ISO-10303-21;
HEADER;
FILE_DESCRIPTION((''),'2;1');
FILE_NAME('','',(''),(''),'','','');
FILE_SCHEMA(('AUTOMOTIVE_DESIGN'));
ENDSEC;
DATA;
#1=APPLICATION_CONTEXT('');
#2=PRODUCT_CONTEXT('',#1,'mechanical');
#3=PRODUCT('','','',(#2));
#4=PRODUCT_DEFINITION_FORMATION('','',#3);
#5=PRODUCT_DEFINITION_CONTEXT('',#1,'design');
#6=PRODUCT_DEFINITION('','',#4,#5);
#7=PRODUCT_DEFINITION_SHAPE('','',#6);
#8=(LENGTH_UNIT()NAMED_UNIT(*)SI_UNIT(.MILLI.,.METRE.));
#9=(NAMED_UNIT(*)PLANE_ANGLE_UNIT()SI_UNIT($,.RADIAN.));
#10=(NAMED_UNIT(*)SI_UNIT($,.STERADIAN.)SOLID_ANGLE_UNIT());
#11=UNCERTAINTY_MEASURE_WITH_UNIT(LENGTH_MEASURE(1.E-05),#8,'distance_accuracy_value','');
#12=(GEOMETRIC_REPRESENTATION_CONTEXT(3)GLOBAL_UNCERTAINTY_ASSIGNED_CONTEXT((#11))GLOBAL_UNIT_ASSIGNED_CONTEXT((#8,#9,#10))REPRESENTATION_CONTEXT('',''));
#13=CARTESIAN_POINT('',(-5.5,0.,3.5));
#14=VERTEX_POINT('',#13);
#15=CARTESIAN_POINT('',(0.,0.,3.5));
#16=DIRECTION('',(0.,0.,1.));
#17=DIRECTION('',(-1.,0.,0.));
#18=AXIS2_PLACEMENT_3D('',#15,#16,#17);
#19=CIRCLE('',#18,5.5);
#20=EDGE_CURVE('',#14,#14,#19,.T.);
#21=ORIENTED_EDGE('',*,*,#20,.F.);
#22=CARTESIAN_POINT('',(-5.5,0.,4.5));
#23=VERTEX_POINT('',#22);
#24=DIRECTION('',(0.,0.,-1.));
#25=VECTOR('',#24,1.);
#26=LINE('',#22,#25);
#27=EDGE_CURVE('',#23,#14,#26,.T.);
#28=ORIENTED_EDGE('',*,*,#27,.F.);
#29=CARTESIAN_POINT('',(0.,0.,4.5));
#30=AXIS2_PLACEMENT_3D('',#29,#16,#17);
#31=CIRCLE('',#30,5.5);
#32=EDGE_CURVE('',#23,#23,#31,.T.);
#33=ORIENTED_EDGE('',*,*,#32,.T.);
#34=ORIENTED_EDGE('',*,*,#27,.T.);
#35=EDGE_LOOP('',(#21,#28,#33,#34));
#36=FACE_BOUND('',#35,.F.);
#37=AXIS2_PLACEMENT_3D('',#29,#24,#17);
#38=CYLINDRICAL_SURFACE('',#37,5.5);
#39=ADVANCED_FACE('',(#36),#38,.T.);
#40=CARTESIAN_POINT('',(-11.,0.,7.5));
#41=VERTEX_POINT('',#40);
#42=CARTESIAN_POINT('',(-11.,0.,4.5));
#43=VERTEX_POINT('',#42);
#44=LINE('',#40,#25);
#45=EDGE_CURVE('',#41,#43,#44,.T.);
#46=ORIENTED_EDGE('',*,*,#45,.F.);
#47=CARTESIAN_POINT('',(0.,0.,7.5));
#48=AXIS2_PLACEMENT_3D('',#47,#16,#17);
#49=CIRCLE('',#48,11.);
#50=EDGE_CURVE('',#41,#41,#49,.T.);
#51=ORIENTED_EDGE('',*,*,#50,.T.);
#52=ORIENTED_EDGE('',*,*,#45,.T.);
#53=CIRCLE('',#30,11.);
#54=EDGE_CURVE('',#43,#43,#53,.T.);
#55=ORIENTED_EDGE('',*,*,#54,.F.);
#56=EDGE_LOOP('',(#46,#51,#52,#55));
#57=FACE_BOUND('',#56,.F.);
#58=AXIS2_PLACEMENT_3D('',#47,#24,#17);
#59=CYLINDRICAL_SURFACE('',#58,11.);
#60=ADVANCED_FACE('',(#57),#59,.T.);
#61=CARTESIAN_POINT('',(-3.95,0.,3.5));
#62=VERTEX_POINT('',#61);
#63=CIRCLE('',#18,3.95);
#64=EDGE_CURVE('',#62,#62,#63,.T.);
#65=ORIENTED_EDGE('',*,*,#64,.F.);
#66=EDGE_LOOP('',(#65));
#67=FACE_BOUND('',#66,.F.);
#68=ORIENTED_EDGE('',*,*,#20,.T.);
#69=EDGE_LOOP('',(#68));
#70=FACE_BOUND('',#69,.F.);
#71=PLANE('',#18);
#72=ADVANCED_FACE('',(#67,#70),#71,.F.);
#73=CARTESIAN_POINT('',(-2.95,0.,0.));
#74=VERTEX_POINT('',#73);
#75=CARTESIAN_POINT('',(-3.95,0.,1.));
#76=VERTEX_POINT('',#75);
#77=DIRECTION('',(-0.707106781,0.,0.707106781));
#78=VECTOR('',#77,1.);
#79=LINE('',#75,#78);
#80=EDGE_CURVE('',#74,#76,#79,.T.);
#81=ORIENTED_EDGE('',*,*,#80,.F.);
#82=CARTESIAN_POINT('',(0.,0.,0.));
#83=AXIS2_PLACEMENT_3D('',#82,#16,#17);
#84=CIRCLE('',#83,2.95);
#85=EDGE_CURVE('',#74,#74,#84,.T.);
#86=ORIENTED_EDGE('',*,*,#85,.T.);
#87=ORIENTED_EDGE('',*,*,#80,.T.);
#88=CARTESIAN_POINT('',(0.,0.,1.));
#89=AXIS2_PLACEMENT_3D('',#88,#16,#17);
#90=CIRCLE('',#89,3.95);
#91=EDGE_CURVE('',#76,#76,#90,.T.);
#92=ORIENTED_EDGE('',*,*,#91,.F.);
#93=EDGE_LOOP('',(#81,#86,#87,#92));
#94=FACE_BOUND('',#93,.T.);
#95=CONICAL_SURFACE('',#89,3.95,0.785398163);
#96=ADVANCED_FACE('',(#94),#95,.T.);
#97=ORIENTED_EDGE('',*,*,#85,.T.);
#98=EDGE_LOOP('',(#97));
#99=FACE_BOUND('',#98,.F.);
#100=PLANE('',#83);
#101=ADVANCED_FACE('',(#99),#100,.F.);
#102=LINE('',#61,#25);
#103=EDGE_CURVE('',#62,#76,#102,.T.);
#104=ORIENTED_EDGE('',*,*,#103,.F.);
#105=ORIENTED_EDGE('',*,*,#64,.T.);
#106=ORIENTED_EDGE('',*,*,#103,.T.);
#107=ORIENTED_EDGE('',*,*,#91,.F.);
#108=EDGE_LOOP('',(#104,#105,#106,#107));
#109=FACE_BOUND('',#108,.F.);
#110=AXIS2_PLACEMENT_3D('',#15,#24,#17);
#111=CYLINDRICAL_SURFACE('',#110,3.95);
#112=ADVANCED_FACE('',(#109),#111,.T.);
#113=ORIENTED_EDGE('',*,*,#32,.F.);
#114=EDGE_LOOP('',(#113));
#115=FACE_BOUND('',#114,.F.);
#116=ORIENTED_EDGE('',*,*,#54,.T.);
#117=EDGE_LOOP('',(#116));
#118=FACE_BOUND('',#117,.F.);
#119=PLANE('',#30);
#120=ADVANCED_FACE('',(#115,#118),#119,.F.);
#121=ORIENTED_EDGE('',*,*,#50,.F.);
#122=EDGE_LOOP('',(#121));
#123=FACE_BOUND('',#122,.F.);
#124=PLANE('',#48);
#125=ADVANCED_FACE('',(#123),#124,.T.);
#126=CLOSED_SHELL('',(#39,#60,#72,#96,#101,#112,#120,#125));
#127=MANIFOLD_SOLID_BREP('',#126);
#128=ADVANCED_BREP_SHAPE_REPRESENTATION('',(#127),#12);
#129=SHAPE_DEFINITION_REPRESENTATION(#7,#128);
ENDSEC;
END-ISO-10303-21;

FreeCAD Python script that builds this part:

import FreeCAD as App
import Part
import Sketcher
from FreeCAD import Vector


def edges_at(feature, points):
    """Names of the edges that pass closest to the given points."""
    edges = feature.Shape.Edges
    near = lambda p: min(range(len(edges)), key=lambda i: edges[i].distToShape(Part.Vertex(*p))[0])
    return sorted({f"Edge{near(p) + 1}" for p in points})


def add_polygon(sketch, points):
    """Adds a closed chain of lines whose ends are joined by coincident constraints."""
    first, n = sketch.GeometryCount, len(points)
    for a, b in zip(points, points[1:] + points[:1]):
        sketch.addGeometry(Part.LineSegment(App.Vector(*a, 0), App.Vector(*b, 0)), False)
    for i in range(n):
        sketch.addConstraint(Sketcher.Constraint("Coincident", first + i, 2, first + (i + 1) % n, 1))

doc = App.newDocument("Part")
params = doc.addObject("Spreadsheet::Sheet", "Params")
for row, (alias, value) in enumerate([
    ("sketch1_width", "11 mm"),
    ("sketch1_height", "3 mm"),
    ("sketch1_height2", "1 mm"),
    ("sketch1_width2", "5.5 mm"),
    ("sketch1_height3", "7.5 mm"),
    ("revolution_angle", "360 deg"),
    ("chamfer_size", "1 mm"),
], start=1):
    params.set(f"A{row}", alias)
    params.set(f"B{row}", "=" + value)
    params.setAlias(f"B{row}", alias)

body = doc.addObject("PartDesign::Body", "Body")

sketch1 = doc.addObject("Sketcher::SketchObject", "Sketch")
body.addObject(sketch1)
sketch1.AttachmentSupport = (doc.XZ_Plane, [""])
sketch1.MapMode = "FlatFace"
add_polygon(sketch1, [(-4, 0), (0, 0), (0, 7.5), (-11, 7.5), (-11, 4.5), (-5.5, 4.5), (-5.5, 3.5), (-4, 3.5)])
sketch1.addConstraint([
    Sketcher.Constraint("Horizontal", 0),
    Sketcher.Constraint("Vertical", 1),
    Sketcher.Constraint("Horizontal", 2),
    Sketcher.Constraint("Vertical", 3),
    Sketcher.Constraint("Horizontal", 4),
    Sketcher.Constraint("Vertical", 5),
    Sketcher.Constraint("Horizontal", 6),
    Sketcher.Constraint("Vertical", 7),
    Sketcher.Constraint("Coincident", 0, 2, -1, 1),
    Sketcher.Constraint("DistanceX", 2, 2, 2, 1, 11.0),
    Sketcher.Constraint("DistanceY", 3, 2, 3, 1, 3.0),
    Sketcher.Constraint("DistanceY", 5, 2, 5, 1, 1.0),
    Sketcher.Constraint("DistanceX", 4, 1, 4, 2, 5.5),
    Sketcher.Constraint("DistanceY", 1, 1, 1, 2, 7.5),
    Sketcher.Constraint("DistanceX", 0, 1, 0, 2, 3.95),
])
sketch1.setExpression("Constraints[17]", "Params.sketch1_width")
sketch1.setExpression("Constraints[18]", "Params.sketch1_height")
sketch1.setExpression("Constraints[19]", "Params.sketch1_height2")
sketch1.setExpression("Constraints[20]", "Params.sketch1_width2")
sketch1.setExpression("Constraints[21]", "Params.sketch1_height3")
revolution = doc.addObject("PartDesign::Revolution", "Revolution")
body.addObject(revolution)
revolution.Profile = sketch1
revolution.ReferenceAxis = (sketch1, ["V_Axis"])
revolution.setExpression("Angle", "Params.revolution_angle")
doc.recompute()

chamfer = doc.addObject("PartDesign::Chamfer", "Chamfer")
body.addObject(chamfer)
chamfer.Base = (revolution, edges_at(revolution, [(3.95, 0, 0)]))
chamfer.setExpression("Size", "Params.chamfer_size")

doc.recompute()
